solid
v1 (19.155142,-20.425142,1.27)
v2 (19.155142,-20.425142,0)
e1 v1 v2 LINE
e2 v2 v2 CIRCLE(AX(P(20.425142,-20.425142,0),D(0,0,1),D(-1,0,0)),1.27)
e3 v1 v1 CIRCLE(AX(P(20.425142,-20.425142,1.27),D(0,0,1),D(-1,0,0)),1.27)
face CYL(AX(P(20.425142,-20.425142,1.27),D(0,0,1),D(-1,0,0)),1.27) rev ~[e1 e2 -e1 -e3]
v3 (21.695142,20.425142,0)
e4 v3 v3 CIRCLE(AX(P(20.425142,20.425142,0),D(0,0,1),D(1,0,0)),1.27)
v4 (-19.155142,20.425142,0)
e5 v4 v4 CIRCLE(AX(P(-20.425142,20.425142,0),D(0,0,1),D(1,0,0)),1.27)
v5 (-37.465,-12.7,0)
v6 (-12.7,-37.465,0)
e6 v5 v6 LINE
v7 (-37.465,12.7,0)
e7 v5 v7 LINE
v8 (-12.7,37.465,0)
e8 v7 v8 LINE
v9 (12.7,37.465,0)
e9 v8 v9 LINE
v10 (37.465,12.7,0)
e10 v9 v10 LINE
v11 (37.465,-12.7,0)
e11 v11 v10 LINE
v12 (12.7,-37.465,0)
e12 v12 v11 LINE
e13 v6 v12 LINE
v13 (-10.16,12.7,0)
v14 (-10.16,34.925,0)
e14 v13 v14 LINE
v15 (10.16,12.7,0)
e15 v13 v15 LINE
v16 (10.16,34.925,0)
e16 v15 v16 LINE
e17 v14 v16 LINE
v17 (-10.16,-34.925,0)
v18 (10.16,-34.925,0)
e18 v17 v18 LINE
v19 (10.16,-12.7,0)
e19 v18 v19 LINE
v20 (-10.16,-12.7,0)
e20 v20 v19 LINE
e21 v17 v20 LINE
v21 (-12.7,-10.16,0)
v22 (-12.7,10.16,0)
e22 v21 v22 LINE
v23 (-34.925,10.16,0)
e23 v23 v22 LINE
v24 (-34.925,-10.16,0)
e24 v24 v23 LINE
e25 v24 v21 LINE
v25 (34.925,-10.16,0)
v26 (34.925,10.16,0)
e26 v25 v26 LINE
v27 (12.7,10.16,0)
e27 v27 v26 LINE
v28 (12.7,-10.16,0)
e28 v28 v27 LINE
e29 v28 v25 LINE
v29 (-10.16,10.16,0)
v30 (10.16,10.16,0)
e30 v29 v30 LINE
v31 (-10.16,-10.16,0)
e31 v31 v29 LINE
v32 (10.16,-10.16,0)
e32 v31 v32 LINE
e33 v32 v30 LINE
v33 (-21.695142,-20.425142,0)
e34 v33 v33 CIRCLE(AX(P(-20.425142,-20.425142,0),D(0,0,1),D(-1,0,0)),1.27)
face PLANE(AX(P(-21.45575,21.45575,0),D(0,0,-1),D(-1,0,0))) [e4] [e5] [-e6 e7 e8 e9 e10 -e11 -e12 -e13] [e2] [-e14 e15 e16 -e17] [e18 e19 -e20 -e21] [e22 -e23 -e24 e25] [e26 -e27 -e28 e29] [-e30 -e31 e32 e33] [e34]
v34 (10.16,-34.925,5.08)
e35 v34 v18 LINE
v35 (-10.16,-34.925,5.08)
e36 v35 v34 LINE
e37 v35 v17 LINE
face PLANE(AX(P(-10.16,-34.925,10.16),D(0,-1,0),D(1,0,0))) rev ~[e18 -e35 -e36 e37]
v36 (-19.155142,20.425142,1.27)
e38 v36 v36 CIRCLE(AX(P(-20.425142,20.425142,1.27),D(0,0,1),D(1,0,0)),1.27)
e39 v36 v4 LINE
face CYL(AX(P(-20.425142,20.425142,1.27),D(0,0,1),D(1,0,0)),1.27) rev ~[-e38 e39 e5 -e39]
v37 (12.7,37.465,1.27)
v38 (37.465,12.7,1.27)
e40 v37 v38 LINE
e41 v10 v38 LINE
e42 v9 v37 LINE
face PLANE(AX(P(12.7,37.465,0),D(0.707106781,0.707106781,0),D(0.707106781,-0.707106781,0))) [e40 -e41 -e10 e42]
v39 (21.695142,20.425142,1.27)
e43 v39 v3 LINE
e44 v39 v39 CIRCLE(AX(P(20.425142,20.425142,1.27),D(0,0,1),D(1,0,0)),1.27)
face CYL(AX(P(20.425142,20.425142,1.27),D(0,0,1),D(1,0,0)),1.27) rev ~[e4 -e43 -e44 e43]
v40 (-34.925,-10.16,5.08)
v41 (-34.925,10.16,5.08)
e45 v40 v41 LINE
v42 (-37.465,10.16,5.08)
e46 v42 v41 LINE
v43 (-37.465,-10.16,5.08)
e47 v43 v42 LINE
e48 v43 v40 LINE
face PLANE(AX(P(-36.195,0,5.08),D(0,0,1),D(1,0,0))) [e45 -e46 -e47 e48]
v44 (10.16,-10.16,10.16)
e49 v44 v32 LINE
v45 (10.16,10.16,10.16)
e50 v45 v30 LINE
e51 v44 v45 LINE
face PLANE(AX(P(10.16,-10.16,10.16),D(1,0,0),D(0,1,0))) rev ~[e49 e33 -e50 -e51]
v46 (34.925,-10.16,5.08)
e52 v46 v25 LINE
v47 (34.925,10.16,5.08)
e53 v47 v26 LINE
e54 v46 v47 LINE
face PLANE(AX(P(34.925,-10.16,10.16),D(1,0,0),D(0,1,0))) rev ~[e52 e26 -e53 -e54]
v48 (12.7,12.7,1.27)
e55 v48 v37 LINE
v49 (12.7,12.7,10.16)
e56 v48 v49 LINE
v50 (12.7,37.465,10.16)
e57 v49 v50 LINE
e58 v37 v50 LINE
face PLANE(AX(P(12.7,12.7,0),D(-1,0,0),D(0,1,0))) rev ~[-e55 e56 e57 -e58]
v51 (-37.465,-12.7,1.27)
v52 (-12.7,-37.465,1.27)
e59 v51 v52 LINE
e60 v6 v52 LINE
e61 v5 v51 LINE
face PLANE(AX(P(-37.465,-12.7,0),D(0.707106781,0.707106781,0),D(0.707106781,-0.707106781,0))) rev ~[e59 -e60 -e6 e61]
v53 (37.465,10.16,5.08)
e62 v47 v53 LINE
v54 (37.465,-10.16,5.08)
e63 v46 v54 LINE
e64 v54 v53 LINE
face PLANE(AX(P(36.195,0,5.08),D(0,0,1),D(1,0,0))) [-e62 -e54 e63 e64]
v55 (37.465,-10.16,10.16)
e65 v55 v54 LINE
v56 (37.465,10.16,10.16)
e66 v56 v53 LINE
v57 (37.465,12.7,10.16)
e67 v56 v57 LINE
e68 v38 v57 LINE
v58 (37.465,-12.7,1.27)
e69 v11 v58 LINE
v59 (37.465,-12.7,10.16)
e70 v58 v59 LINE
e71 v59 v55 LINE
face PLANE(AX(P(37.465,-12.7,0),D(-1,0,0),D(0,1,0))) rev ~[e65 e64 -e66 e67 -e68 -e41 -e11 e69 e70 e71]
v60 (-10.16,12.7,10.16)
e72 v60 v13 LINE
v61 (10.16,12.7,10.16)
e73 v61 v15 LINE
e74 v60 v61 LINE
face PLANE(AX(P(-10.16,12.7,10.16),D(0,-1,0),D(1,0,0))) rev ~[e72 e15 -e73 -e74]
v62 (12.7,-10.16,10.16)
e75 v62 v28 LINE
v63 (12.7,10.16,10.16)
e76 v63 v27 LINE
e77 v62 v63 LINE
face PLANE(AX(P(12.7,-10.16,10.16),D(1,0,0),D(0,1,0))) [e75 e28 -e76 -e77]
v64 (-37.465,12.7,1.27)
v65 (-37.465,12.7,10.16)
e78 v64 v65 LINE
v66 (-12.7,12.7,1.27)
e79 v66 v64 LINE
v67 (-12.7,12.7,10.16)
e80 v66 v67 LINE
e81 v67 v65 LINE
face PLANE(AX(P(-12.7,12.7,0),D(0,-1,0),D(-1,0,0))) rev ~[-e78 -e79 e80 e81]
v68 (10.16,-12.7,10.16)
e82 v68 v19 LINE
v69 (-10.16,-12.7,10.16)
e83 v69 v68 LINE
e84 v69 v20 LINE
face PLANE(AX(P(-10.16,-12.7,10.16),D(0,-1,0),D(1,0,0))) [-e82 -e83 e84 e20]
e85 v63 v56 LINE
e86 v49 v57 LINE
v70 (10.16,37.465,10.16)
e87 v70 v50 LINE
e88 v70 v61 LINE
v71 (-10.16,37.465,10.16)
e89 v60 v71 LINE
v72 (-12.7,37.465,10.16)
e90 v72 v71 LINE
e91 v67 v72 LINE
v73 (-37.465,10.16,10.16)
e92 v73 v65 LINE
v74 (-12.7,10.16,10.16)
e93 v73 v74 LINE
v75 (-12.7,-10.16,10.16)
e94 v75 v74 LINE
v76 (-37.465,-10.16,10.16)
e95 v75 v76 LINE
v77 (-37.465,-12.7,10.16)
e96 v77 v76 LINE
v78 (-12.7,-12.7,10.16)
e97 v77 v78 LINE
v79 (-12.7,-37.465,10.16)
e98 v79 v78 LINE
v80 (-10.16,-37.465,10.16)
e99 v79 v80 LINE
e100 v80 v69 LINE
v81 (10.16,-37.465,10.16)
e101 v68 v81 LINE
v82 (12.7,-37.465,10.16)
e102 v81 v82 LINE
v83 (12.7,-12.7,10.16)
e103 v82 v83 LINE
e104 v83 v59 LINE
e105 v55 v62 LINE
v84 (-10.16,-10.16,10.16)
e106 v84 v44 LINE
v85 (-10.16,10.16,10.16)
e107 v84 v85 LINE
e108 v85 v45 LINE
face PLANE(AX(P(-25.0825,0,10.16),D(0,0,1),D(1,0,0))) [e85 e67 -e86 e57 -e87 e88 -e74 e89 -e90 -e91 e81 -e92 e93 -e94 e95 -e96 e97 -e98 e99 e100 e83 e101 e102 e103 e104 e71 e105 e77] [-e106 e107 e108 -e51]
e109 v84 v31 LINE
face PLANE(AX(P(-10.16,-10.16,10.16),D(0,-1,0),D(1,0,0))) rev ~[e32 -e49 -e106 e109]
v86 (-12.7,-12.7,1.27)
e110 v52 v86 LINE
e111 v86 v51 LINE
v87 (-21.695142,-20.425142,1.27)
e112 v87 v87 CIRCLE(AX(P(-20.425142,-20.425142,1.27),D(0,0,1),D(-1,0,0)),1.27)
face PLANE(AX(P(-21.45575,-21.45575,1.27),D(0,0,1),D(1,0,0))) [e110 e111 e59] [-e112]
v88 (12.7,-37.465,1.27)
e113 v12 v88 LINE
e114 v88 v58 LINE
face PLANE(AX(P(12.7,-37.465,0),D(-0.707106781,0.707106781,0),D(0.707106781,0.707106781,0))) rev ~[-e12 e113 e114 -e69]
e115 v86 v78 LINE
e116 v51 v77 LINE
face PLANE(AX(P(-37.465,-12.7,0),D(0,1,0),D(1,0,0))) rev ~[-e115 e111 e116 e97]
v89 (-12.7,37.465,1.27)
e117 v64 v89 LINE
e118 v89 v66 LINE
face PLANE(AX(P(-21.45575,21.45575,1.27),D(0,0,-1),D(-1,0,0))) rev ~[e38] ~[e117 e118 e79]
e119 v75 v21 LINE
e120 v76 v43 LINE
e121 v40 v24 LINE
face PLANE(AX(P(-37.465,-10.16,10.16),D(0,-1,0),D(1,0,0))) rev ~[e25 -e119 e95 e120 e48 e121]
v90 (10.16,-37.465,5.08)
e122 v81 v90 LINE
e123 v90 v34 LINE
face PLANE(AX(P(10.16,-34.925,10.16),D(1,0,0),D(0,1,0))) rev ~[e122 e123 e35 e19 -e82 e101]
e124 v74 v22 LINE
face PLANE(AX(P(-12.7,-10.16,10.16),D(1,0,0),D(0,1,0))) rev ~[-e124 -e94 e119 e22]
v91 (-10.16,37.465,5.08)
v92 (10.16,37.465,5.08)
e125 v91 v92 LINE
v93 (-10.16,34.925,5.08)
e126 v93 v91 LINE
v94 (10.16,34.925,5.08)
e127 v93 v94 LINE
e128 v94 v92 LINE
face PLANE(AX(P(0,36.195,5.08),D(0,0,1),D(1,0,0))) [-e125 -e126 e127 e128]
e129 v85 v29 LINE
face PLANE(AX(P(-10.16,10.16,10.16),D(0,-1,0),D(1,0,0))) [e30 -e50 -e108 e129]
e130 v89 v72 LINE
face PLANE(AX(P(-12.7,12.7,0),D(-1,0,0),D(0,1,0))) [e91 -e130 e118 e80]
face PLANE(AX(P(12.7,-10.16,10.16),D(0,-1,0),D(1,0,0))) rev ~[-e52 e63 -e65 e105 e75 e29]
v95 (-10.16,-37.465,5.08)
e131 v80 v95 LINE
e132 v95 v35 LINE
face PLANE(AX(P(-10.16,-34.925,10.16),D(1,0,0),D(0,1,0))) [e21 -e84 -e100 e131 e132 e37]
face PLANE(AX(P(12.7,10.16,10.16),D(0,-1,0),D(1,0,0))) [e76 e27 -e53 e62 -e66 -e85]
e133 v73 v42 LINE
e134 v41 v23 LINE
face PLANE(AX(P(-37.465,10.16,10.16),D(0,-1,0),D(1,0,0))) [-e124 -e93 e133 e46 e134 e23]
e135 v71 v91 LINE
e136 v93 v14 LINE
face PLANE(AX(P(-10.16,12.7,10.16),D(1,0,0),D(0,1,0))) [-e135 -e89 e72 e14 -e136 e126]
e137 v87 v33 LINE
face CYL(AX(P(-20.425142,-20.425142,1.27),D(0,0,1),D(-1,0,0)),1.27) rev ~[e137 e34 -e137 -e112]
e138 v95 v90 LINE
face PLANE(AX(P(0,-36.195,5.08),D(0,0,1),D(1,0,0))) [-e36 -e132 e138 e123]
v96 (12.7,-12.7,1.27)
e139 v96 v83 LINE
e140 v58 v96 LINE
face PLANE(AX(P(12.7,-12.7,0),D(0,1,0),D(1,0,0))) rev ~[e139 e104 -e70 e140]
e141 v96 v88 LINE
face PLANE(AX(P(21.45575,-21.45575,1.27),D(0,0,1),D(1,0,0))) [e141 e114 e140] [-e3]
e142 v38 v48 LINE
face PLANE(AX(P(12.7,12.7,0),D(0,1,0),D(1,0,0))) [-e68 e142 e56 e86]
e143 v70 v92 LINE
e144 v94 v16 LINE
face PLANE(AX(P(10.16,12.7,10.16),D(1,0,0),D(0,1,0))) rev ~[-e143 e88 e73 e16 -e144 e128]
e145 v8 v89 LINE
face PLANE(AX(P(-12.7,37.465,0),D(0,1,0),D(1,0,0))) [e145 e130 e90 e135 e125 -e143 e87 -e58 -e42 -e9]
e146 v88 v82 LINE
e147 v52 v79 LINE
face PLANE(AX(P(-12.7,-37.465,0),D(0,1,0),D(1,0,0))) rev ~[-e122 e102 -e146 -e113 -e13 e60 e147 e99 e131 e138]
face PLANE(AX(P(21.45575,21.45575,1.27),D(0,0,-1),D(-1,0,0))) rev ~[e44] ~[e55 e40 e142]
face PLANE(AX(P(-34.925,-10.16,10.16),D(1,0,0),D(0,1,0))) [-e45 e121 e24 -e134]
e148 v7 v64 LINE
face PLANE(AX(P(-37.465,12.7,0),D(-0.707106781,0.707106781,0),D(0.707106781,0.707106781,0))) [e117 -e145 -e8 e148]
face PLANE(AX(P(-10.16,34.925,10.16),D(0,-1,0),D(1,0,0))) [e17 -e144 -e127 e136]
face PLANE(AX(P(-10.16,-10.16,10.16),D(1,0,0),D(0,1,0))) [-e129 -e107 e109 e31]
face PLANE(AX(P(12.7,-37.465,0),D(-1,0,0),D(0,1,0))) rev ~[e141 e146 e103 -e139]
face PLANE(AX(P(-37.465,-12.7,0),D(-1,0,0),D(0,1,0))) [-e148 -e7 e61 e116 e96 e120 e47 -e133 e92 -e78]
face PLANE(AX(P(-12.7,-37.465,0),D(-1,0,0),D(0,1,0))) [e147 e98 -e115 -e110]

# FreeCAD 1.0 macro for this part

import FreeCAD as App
import Part
import Sketcher
from FreeCAD import Vector
Q = App.Units.Quantity


def add_polygon(sketch, points):
    """Adds a closed chain of lines whose ends are joined by coincident constraints."""
    first, n = sketch.GeometryCount, len(points)
    for a, b in zip(points, points[1:] + points[:1]):
        sketch.addGeometry(Part.LineSegment(App.Vector(*a, 0), App.Vector(*b, 0)), False)
    for i in range(n):
        sketch.addConstraint(Sketcher.Constraint("Coincident", first + i, 2, first + (i + 1) % n, 1))

doc = App.newDocument("Part")
params = doc.addObject("Spreadsheet::Sheet", "Params")
for row, (alias, value) in enumerate([
    ("sketch1_width", "1 in"),
    ("sketch1_width2", "0.975 in"),
    ("pad1_length", "0.4 in"),
    ("sketch2_width", "0.8 in"),
    ("sketch2_width2", "0.875 in"),
    ("pocket1_length", "0.4 in"),
    ("sketch3_width", "0.8 in"),
    ("sketch3_width2", "0.1 in"),
    ("pocket2_length", "0.2 in"),
    ("sketch4_width", "0.975 in"),
    ("pad2_length", "0.05 in"),
    ("sketch5_diameter", "0.1 in"),
    ("pocket3_length", "0.05 in"),
], start=1):
    params.set(f"A{row}", alias)
    params.set(f"B{row}", "=" + value)
    params.setAlias(f"B{row}", alias)

body = doc.addObject("PartDesign::Body", "Body")

# Sketch on XY plane
sketch1 = body.newObject("Sketcher::SketchObject", "Sketch")
sketch1.AttachmentSupport = (doc.getObject("XY_Plane"), [""])
sketch1.MapMode = "FlatFace"
add_polygon(sketch1, [(-37, 13), (-37, -13), (-13, -13), (-13, -37), (13, -37), (13, -13), (37, -13), (37, 13), (13, 13), (13, 37), (-13, 37), (-13, 13)])  # lines 0-11
sketch1.addConstraint([
    Sketcher.Constraint("Vertical", 0),
    Sketcher.Constraint("Horizontal", 1),
    Sketcher.Constraint("Vertical", 2),
    Sketcher.Constraint("Horizontal", 3),
    Sketcher.Constraint("Vertical", 4),
    Sketcher.Constraint("Horizontal", 5),
    Sketcher.Constraint("Vertical", 6),
    Sketcher.Constraint("Horizontal", 7),
    Sketcher.Constraint("Vertical", 8),
    Sketcher.Constraint("Horizontal", 9),
    Sketcher.Constraint("Vertical", 10),
    Sketcher.Constraint("Horizontal", 11),
    Sketcher.Constraint("Symmetric", 0, 2, 6, 2, -1, 1),
    Sketcher.Constraint("Symmetric", 2, 2, 8, 2, -1, 1),
    Sketcher.Constraint("Symmetric", 4, 2, 10, 2, -1, 1),
    Sketcher.Constraint("Symmetric", 1, 2, 4, 2, -2),
    Sketcher.Constraint("Equal", 9, 0),
    Sketcher.Constraint("Equal", 11, 2),
    Sketcher.Constraint("DistanceX", 3, 1, 3, 2, Q("1 in")),
    Sketcher.Constraint("DistanceX", 1, 1, 1, 2, Q("0.975 in")),
])
sketch1.setExpression("Constraints[30]", "Params.sketch1_width")
sketch1.setExpression("Constraints[31]", "Params.sketch1_width2")
pad1 = body.newObject("PartDesign::Pad", "Pad")
pad1.Profile = sketch1
pad1.setExpression("Length", "Params.pad1_length")

# Sketch on XY plane
sketch2 = body.newObject("Sketcher::SketchObject", "Sketch001")
sketch2.AttachmentSupport = (doc.getObject("XY_Plane"), [""])
sketch2.MapMode = "FlatFace"
sketch2.AttachmentOffset = App.Placement(Vector(0, 0, 0.4 * 25.4), App.Rotation())
add_polygon(sketch2, [(-10, 10), (-10, -10), (10, -10), (10, 10)])  # lines 0-3
add_polygon(sketch2, [(-10, 35), (-10, 13), (10, 13), (10, 35)])  # lines 4-7
add_polygon(sketch2, [(-10, -13), (-10, -35), (10, -35), (10, -13)])  # lines 8-11
add_polygon(sketch2, [(-35, 10), (-35, -10), (-13, -10), (-13, 10)])  # lines 12-15
add_polygon(sketch2, [(13, 10), (13, -10), (35, -10), (35, 10)])  # lines 16-19
sketch2.addConstraint([
    Sketcher.Constraint("Vertical", 0),
    Sketcher.Constraint("Horizontal", 1),
    Sketcher.Constraint("Vertical", 2),
    Sketcher.Constraint("Horizontal", 3),
    Sketcher.Constraint("Vertical", 4),
    Sketcher.Constraint("Horizontal", 5),
    Sketcher.Constraint("Vertical", 6),
    Sketcher.Constraint("Horizontal", 7),
    Sketcher.Constraint("Vertical", 8),
    Sketcher.Constraint("Horizontal", 9),
    Sketcher.Constraint("Vertical", 10),
    Sketcher.Constraint("Horizontal", 11),
    Sketcher.Constraint("Vertical", 12),
    Sketcher.Constraint("Horizontal", 13),
    Sketcher.Constraint("Vertical", 14),
    Sketcher.Constraint("Horizontal", 15),
    Sketcher.Constraint("Vertical", 16),
    Sketcher.Constraint("Horizontal", 17),
    Sketcher.Constraint("Vertical", 18),
    Sketcher.Constraint("Horizontal", 19),
    Sketcher.Constraint("Symmetric", 0, 2, 2, 2, -1, 1),
    Sketcher.Constraint("Symmetric", 6, 2, 8, 2, -1, 1),
    Sketcher.Constraint("Symmetric", 4, 2, 10, 2, -1, 1),
    Sketcher.Constraint("Symmetric", 14, 2, 16, 2, -1, 1),
    Sketcher.Constraint("Symmetric", 12, 2, 18, 2, -1, 1),
    Sketcher.Constraint("Horizontal", 1, 2, 12, 2),
    Sketcher.Constraint("Horizontal", 3, 2, 14, 2),
    Sketcher.Constraint("Vertical", 3, 2, 4, 2),
    Sketcher.Constraint("Vertical", 2, 2, 5, 2),
    Sketcher.Constraint("Equal", 11, 0),
    Sketcher.Constraint("Equal", 19, 4),
    Sketcher.Constraint("DistanceX", 1, 1, 1, 2, Q("0.8 in")),
    Sketcher.Constraint("DistanceY", 10, 2, 5, 2, Q("1 in")),
    Sketcher.Constraint("DistanceX", 13, 2, -1, 1, Q("0.5 in")),
    Sketcher.Constraint("DistanceX", 13, 1, 13, 2, Q("0.875 in")),
])
sketch2.setExpression("Constraints[51]", "Params.sketch2_width")
sketch2.setExpression("Constraints[54]", "Params.sketch2_width2")
pocket1 = body.newObject("PartDesign::Pocket", "Pocket")
pocket1.Profile = sketch2
pocket1.setExpression("Length", "Params.pocket1_length")

# Sketch on XY plane
sketch3 = body.newObject("Sketcher::SketchObject", "Sketch002")
sketch3.AttachmentSupport = (doc.getObject("XY_Plane"), [""])
sketch3.MapMode = "FlatFace"
sketch3.AttachmentOffset = App.Placement(Vector(0, 0, 0.4 * 25.4), App.Rotation())
add_polygon(sketch3, [(-10.2, 37.5), (-10.2, 34.9), (10.2, 34.9), (10.2, 37.5)])  # lines 0-3
add_polygon(sketch3, [(34.9, 10.2), (34.9, -10.2), (37.5, -10.2), (37.5, 10.2)])  # lines 4-7
add_polygon(sketch3, [(-37.5, 10.2), (-37.5, -10.2), (-34.9, -10.2), (-34.9, 10.2)])  # lines 8-11
add_polygon(sketch3, [(-10.2, -34.9), (-10.2, -37.5), (10.2, -37.5), (10.2, -34.9)])  # lines 12-15
sketch3.addConstraint([
    Sketcher.Constraint("Vertical", 0),
    Sketcher.Constraint("Horizontal", 1),
    Sketcher.Constraint("Vertical", 2),
    Sketcher.Constraint("Horizontal", 3),
    Sketcher.Constraint("Vertical", 4),
    Sketcher.Constraint("Horizontal", 5),
    Sketcher.Constraint("Vertical", 6),
    Sketcher.Constraint("Horizontal", 7),
    Sketcher.Constraint("Vertical", 8),
    Sketcher.Constraint("Horizontal", 9),
    Sketcher.Constraint("Vertical", 10),
    Sketcher.Constraint("Horizontal", 11),
    Sketcher.Constraint("Vertical", 12),
    Sketcher.Constraint("Horizontal", 13),
    Sketcher.Constraint("Vertical", 14),
    Sketcher.Constraint("Horizontal", 15),
    Sketcher.Constraint("Symmetric", 6, 2, 8, 2, -1, 1),
    Sketcher.Constraint("Symmetric", 4, 2, 10, 2, -1, 1),
    Sketcher.Constraint("Symmetric", 2, 2, 12, 2, -1, 1),
    Sketcher.Constraint("Symmetric", 0, 2, 14, 2, -1, 1),
    Sketcher.Constraint("Horizontal", 5, 2, 8, 2),
    Sketcher.Constraint("Vertical", 3, 2, 12, 2),
    Sketcher.Constraint("Equal", 11, 0),
    Sketcher.Constraint("Equal", 15, 4),
    Sketcher.Constraint("DistanceX", 1, 1, 1, 2, Q("0.8 in")),
    Sketcher.Constraint("DistanceX", 5, 1, 5, 2, Q("0.1 in")),
    Sketcher.Constraint("DistanceX", 8, 2, 4, 2, Q("2.85 in")),
    Sketcher.Constraint("DistanceY", -1, 1, 0, 2, Q("1.375 in")),
])
sketch3.setExpression("Constraints[40]", "Params.sketch3_width")
sketch3.setExpression("Constraints[41]", "Params.sketch3_width2")
pocket2 = body.newObject("PartDesign::Pocket", "Pocket001")
pocket2.Profile = sketch3
pocket2.setExpression("Length", "Params.pocket2_length")

# Sketch on XY plane
sketch4 = body.newObject("Sketcher::SketchObject", "Sketch003")
sketch4.AttachmentSupport = (doc.getObject("XY_Plane"), [""])
sketch4.MapMode = "FlatFace"
add_polygon(sketch4, [(-13, 37), (-37, 13), (-13, 13)])  # lines 0-2
add_polygon(sketch4, [(37, 13), (13, 37), (13, 13)])  # lines 3-5
add_polygon(sketch4, [(37, -13), (13, -13), (13, -37)])  # lines 6-8
add_polygon(sketch4, [(-13, -37), (-13, -13), (-37, -13)])  # lines 9-11
sketch4.addConstraint([
    Sketcher.Constraint("Horizontal", 1),
    Sketcher.Constraint("Vertical", 2),
    Sketcher.Constraint("Vertical", 4),
    Sketcher.Constraint("Horizontal", 5),
    Sketcher.Constraint("Horizontal", 6),
    Sketcher.Constraint("Vertical", 7),
    Sketcher.Constraint("Vertical", 9),
    Sketcher.Constraint("Horizontal", 10),
    Sketcher.Constraint("Symmetric", 1, 2, 6, 2, -1, 1),
    Sketcher.Constraint("Symmetric", 4, 2, 9, 2, -1, 1),
    Sketcher.Constraint("Symmetric", 2, 2, 3, 2, -2),
    Sketcher.Constraint("Symmetric", 0, 2, 5, 2, -2),
    Sketcher.Constraint("Perpendicular", 0, 3),
    Sketcher.Constraint("Perpendicular", 3, 8),
    Sketcher.Constraint("Perpendicular", 8, 11),
    Sketcher.Constraint("Horizontal", 7, 2, 11, 2),
    Sketcher.Constraint("Vertical", 5, 2, 8, 2),
    Sketcher.Constraint("DistanceX", 2, 2, 3, 2, Q("1 in")),
    Sketcher.Constraint("DistanceY", 6, 2, 4, 2, Q("1 in")),
    Sketcher.Constraint("DistanceX", 1, 1, 1, 2, Q("0.975 in")),
])
sketch4.setExpression("Constraints[31]", "Params.sketch4_width")
pad2 = body.newObject("PartDesign::Pad", "Pad001")
pad2.Profile = sketch4
pad2.setExpression("Length", "Params.pad2_length")

# Sketch on XY plane
sketch5 = body.newObject("Sketcher::SketchObject", "Sketch004")
sketch5.AttachmentSupport = (doc.getObject("XY_Plane"), [""])
sketch5.MapMode = "FlatFace"
sketch5.AttachmentOffset = App.Placement(Vector(0, 0, 0.05 * 25.4), App.Rotation())
sketch5.addGeometry([
    Part.Circle(Vector(-20.4, 20.4, 0), Vector(0, 0, 1), 1.3),
    Part.Circle(Vector(20.4, 20.4, 0), Vector(0, 0, 1), 1.3),
    Part.Circle(Vector(20.4, -20.4, 0), Vector(0, 0, 1), 1.3),
    Part.Circle(Vector(-20.4, -20.4, 0), Vector(0, 0, 1), 1.3),
], False)
sketch5.addConstraint([
    Sketcher.Constraint("Equal", 0, 1),
    Sketcher.Constraint("Equal", 1, 2),
    Sketcher.Constraint("Equal", 2, 3),
    Sketcher.Constraint("Symmetric", 0, 3, 2, 3, -1, 1),
    Sketcher.Constraint("Symmetric", 1, 3, 3, 3, -1, 1),
    Sketcher.Constraint("Symmetric", 0, 3, 1, 3, -2),
    Sketcher.Constraint("Diameter", 0, Q("0.1 in")),
    Sketcher.Constraint("DistanceX", 0, 3, -1, 1, 20.425142),
    Sketcher.Constraint("DistanceY", -1, 1, 0, 3, 20.425142),
])
sketch5.setExpression("Constraints[6]", "Params.sketch5_diameter")
pocket3 = body.newObject("PartDesign::Pocket", "Pocket002")
pocket3.Profile = sketch5
pocket3.setExpression("Length", "Params.pocket3_length")

doc.recompute()
